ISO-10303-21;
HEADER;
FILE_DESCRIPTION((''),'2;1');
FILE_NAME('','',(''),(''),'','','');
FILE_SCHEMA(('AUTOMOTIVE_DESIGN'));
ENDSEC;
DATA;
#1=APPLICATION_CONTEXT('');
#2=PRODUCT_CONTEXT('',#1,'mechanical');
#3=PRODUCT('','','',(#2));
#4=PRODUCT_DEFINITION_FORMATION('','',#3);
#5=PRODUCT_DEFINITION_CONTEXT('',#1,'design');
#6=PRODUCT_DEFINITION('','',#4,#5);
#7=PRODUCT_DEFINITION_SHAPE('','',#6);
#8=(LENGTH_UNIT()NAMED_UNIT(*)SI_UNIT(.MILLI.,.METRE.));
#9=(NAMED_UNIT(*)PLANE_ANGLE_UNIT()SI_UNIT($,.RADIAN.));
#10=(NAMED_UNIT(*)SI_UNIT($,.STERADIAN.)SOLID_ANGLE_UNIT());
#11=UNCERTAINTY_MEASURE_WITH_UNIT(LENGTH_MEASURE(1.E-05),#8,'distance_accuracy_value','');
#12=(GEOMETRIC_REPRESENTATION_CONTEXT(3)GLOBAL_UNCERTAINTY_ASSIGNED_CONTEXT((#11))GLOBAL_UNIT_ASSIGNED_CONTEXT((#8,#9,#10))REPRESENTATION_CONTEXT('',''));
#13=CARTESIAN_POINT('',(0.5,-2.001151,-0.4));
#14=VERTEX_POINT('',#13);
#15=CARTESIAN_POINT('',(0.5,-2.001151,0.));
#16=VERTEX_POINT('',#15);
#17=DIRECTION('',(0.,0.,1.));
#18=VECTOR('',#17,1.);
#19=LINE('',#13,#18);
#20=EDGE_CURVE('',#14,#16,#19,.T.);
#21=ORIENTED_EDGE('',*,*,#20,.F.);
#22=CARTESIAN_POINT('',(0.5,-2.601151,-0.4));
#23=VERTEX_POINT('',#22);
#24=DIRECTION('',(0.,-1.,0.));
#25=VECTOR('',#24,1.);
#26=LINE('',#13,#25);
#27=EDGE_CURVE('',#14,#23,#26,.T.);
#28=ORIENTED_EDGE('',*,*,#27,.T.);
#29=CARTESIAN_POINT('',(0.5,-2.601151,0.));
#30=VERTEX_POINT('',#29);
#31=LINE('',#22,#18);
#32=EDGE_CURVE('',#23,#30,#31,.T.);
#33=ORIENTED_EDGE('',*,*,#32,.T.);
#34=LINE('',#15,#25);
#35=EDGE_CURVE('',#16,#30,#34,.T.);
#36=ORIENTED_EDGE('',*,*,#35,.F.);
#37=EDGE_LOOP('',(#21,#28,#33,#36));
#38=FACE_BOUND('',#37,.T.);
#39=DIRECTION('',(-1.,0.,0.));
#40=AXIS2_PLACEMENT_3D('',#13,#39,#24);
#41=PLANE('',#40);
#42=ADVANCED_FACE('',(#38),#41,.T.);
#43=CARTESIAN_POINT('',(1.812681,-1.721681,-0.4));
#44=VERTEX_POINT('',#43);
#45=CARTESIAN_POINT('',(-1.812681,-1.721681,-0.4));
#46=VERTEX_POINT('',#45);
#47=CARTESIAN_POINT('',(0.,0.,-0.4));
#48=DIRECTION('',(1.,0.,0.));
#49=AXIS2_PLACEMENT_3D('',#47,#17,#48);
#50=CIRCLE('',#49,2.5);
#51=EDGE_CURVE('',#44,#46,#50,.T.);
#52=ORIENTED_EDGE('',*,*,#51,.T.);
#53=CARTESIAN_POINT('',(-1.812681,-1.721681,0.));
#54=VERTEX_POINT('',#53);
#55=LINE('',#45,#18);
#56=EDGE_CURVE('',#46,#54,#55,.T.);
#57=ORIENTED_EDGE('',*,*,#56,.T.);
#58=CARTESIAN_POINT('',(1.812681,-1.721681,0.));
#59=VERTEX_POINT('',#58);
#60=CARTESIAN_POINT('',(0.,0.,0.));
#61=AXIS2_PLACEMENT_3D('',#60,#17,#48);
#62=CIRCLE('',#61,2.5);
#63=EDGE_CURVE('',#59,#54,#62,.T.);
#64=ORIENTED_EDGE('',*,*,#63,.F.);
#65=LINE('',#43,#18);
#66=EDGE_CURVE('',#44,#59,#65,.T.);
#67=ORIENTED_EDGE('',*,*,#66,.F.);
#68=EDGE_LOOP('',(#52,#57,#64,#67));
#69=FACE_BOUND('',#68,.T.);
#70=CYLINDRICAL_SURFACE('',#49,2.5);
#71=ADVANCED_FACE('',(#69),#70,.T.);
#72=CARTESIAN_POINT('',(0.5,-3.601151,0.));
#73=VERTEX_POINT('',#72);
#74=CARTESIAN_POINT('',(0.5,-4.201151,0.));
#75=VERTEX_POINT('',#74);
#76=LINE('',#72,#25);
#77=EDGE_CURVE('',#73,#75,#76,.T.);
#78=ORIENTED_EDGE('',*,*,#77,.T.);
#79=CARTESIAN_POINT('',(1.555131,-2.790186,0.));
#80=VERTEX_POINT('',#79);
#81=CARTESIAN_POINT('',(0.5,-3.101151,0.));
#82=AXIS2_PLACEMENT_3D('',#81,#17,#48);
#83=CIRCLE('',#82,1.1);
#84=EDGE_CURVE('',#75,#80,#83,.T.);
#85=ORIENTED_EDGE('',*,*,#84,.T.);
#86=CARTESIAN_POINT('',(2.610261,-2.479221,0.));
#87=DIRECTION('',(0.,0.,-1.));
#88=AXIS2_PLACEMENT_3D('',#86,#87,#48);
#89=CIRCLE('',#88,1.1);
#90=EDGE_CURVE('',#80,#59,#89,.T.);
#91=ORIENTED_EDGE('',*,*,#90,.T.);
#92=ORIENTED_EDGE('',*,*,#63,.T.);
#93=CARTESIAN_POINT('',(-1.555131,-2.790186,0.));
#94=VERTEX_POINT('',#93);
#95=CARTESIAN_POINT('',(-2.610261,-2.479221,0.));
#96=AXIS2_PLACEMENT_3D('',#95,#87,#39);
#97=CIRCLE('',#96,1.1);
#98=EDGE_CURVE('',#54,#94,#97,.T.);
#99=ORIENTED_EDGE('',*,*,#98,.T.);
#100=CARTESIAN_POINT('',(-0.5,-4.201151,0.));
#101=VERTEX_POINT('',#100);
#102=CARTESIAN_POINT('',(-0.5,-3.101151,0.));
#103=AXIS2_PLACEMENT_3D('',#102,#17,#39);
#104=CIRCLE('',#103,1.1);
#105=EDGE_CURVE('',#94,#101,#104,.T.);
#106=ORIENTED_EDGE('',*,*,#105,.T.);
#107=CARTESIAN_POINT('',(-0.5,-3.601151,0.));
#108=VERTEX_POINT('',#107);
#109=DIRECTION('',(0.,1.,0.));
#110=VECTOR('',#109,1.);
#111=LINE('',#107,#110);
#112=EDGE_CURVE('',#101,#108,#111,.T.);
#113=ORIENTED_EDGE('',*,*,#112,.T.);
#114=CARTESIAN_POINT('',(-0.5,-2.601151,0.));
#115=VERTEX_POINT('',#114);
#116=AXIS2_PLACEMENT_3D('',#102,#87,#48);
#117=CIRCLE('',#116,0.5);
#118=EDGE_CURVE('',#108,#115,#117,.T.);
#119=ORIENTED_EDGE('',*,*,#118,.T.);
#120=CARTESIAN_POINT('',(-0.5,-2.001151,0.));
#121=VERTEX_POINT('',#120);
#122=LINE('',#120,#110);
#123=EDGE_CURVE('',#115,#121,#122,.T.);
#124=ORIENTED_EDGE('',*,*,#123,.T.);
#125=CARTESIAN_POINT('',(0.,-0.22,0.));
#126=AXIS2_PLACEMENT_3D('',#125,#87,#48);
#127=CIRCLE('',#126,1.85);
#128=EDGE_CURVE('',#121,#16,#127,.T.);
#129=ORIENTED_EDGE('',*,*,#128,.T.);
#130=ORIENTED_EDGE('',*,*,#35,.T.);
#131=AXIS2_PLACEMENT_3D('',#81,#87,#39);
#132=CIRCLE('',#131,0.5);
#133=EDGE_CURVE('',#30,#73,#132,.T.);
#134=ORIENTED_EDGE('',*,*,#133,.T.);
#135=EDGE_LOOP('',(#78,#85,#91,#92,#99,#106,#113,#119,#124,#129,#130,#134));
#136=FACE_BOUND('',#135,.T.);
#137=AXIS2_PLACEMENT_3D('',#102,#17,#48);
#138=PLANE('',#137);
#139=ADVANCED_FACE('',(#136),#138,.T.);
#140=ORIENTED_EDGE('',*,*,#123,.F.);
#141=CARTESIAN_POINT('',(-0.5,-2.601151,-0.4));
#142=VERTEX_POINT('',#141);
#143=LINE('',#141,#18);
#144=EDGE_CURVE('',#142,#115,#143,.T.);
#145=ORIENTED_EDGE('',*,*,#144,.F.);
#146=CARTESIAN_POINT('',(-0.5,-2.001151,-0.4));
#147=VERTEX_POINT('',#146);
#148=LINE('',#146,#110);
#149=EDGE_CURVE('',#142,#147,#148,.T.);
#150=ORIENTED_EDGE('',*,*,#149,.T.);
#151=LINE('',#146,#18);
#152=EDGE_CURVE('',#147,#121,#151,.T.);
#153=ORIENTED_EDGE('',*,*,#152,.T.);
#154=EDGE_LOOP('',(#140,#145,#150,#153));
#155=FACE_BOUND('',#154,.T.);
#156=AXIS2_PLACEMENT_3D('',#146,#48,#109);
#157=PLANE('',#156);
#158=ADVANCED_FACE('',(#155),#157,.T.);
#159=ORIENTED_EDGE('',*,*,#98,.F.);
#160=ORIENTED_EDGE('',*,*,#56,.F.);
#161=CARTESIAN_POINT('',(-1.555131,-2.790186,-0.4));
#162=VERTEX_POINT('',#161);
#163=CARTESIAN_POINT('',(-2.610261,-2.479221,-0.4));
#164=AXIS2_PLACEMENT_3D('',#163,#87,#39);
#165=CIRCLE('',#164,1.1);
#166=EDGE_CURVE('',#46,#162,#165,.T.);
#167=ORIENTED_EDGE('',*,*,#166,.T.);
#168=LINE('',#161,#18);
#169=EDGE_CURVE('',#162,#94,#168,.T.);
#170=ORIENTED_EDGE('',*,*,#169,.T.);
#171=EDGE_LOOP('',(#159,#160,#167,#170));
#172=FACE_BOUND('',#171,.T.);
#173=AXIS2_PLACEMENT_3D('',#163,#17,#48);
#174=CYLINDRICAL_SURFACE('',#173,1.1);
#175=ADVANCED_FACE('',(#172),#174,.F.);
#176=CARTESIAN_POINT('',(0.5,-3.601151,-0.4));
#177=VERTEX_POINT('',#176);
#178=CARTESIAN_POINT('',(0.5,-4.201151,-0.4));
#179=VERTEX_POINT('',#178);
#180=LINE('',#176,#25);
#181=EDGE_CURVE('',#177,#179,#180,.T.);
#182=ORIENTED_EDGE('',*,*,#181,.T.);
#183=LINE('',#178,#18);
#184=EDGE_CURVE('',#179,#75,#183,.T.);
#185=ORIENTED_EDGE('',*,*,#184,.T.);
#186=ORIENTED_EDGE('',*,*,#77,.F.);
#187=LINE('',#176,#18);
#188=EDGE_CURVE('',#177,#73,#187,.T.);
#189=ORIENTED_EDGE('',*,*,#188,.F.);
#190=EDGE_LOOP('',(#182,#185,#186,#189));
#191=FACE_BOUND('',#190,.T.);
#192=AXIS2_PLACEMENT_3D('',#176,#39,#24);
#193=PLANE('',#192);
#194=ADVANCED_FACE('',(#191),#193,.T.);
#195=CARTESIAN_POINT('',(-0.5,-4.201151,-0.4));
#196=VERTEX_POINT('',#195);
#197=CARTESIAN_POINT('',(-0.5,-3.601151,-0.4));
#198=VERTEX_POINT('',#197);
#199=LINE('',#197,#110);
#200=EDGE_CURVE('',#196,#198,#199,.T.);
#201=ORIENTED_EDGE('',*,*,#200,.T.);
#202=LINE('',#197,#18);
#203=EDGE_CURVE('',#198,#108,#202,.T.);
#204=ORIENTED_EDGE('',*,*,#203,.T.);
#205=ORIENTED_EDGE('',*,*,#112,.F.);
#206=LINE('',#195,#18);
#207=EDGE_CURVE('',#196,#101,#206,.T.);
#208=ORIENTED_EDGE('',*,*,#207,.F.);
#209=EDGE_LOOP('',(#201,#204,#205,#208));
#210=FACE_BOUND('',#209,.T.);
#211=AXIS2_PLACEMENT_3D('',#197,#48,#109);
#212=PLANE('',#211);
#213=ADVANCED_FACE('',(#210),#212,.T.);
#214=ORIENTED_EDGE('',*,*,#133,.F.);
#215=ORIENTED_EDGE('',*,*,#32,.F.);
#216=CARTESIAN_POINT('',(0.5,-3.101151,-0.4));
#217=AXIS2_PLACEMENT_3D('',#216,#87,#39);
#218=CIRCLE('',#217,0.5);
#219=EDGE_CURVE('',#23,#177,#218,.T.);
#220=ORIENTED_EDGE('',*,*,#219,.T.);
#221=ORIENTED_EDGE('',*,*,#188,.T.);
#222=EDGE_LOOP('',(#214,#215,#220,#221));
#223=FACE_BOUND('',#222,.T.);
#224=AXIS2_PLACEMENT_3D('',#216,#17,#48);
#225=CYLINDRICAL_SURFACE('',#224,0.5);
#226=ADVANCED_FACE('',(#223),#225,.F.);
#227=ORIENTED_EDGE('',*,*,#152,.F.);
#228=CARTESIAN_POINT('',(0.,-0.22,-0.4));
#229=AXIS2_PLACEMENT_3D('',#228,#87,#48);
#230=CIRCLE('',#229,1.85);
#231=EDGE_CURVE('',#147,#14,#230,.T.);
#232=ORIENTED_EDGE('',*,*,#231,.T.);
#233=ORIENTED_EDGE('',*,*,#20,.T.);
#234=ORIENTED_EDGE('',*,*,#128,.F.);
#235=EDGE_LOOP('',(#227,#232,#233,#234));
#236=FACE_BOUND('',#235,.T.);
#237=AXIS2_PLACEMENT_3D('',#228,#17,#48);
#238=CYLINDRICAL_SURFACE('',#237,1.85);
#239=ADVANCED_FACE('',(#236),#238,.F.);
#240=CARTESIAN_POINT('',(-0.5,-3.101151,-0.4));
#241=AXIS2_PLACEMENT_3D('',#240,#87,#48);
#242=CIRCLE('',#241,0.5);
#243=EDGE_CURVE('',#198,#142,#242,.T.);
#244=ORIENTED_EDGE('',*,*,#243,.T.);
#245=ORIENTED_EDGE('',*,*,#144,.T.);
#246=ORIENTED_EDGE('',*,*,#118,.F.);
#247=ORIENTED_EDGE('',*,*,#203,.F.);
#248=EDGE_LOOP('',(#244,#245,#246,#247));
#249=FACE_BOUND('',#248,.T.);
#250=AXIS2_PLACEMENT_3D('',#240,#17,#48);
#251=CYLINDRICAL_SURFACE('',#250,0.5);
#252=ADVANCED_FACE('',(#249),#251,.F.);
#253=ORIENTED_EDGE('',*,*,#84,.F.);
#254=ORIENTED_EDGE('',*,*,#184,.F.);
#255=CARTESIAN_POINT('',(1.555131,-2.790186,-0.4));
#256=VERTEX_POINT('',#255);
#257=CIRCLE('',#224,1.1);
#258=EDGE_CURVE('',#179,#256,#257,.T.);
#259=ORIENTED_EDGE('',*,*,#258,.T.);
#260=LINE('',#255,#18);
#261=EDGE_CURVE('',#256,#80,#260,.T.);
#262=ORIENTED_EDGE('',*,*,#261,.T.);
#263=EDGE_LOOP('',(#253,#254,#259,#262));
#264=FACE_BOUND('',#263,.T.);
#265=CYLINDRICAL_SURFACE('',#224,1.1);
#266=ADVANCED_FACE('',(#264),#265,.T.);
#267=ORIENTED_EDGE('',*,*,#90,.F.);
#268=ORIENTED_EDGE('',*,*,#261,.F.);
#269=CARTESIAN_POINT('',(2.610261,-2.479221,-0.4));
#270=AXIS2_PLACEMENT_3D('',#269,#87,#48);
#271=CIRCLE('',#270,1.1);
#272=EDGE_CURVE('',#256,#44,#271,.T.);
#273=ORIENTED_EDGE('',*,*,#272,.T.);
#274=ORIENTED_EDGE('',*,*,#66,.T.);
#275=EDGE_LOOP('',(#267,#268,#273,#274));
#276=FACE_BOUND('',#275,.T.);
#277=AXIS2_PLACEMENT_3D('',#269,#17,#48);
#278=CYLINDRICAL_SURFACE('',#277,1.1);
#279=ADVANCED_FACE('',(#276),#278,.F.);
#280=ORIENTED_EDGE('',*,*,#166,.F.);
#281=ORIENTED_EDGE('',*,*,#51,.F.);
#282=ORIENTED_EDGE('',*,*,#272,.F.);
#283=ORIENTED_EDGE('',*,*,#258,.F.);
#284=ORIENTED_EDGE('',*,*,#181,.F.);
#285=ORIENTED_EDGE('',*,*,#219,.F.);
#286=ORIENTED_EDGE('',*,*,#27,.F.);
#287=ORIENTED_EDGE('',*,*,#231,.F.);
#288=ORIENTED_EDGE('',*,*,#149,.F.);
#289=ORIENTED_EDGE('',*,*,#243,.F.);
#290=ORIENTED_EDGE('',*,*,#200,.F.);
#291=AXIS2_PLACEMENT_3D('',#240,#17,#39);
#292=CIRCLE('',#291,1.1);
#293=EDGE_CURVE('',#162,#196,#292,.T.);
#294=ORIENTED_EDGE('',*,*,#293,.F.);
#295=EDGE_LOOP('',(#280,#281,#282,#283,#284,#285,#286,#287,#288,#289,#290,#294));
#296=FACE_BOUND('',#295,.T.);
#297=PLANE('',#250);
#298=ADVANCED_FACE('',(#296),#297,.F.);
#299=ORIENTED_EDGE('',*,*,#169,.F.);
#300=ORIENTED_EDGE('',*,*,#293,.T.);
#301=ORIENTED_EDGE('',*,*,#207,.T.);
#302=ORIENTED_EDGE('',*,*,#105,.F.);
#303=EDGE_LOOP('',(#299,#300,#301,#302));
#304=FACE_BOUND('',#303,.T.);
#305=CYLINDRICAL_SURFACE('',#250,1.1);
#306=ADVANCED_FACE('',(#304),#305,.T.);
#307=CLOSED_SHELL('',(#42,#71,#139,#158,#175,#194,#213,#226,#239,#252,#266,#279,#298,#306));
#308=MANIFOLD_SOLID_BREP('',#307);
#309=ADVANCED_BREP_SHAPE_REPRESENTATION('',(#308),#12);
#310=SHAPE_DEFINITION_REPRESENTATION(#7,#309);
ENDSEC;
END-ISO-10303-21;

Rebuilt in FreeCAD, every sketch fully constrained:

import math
import FreeCAD as App
import Part
import Sketcher
from FreeCAD import Vector

doc = App.newDocument("Part")
body = doc.addObject("PartDesign::Body", "Body")

sketch1 = doc.addObject("Sketcher::SketchObject", "Sketch")
body.addObject(sketch1)
sketch1.AttachmentSupport = (doc.XY_Plane, [""])
sketch1.MapMode = "FlatFace"
sketch1.addGeometry([
    Part.LineSegment(Vector(-0.5, -2.601151, 0), Vector(-0.5, -2.001151, 0)),
    Part.ArcOfCircle(Part.Circle(Vector(0, -0.22, 0), Vector(0, 0, 1), 1.85), math.radians(-74.31965), math.radians(254.31965)),
    Part.LineSegment(Vector(0.5, -2.001151, 0), Vector(0.5, -2.601151, 0)),
    Part.ArcOfCircle(Part.Circle(Vector(0.5, -3.101151, 0), Vector(0, 0, 1), 0.5), math.radians(-90), math.radians(90)),
    Part.LineSegment(Vector(0.5, -3.601151, 0), Vector(0.5, -4.201151, 0)),
    Part.ArcOfCircle(Part.Circle(Vector(0.5, -3.101151, 0), Vector(0, 0, 1), 1.1), math.radians(-90), math.radians(16.421156)),
    Part.ArcOfCircle(Part.Circle(Vector(2.610261, -2.479221, 0), Vector(0, 0, 1), 1.1), math.radians(136.474885), math.radians(196.421155)),
    Part.ArcOfCircle(Part.Circle(Vector(0, 0, 0), Vector(0, 0, 1), 2.5), math.radians(-43.525115), math.radians(223.525115)),
    Part.ArcOfCircle(Part.Circle(Vector(-2.610261, -2.479221, 0), Vector(0, 0, 1), 1.1), math.radians(-16.421155), math.radians(43.525115)),
    Part.ArcOfCircle(Part.Circle(Vector(-0.5, -3.101151, 0), Vector(0, 0, 1), 1.1), math.radians(163.578844), math.radians(270)),
    Part.LineSegment(Vector(-0.5, -4.201151, 0), Vector(-0.5, -3.601151, 0)),
    Part.ArcOfCircle(Part.Circle(Vector(-0.5, -3.101151, 0), Vector(0, 0, 1), 0.5), math.radians(90), math.radians(270)),
], False)
sketch1.addConstraint([
    Sketcher.Constraint("Coincident", 0, 2, 1, 2),
    Sketcher.Constraint("Coincident", 1, 1, 2, 1),
    Sketcher.Constraint("Coincident", 2, 2, 3, 2),
    Sketcher.Constraint("Coincident", 3, 1, 4, 1),
    Sketcher.Constraint("Coincident", 4, 2, 5, 1),
    Sketcher.Constraint("Tangent", 5, 2, 6, 2),
    Sketcher.Constraint("Tangent", 6, 1, 7, 1),
    Sketcher.Constraint("Tangent", 7, 2, 8, 2),
    Sketcher.Constraint("Tangent", 8, 1, 9, 1),
    Sketcher.Constraint("Coincident", 9, 2, 10, 1),
    Sketcher.Constraint("Coincident", 10, 2, 11, 2),
    Sketcher.Constraint("Coincident", 11, 1, 0, 1),
    Sketcher.Constraint("Vertical", 0),
    Sketcher.Constraint("Vertical", 2),
    Sketcher.Constraint("Vertical", 4),
    Sketcher.Constraint("Vertical", 10),
    Sketcher.Constraint("Coincident", 7, 3, -1, 1),
    Sketcher.Constraint("Coincident", 5, 3, 3, 3),
    Sketcher.Constraint("Coincident", 11, 3, 9, 3),
    Sketcher.Constraint("Equal", 5, 6),
    Sketcher.Constraint("Equal", 6, 8),
    Sketcher.Constraint("Equal", 8, 9),
    Sketcher.Constraint("Equal", 3, 11),
    Sketcher.Constraint("Symmetric", 3, 3, 9, 3, -2),
    Sketcher.Constraint("Symmetric", 0, 2, 1, 1, -2),
    Sketcher.Constraint("Vertical", 11, 3, 0, 2),
    Sketcher.Constraint("Vertical", 2, 2, 3, 1),
    Sketcher.Constraint("Vertical", 0, 2, 9, 2),
    Sketcher.Constraint("Equal", 2, 4),
    Sketcher.Constraint("Radius", 3, 0.5),
    Sketcher.Constraint("Radius", 5, 1.1),
    Sketcher.Constraint("Radius", 7, 2.5),
    Sketcher.Constraint("Radius", 1, 1.85),
    Sketcher.Constraint("DistanceX", 9, 3, 3, 3, 1.0),
    Sketcher.Constraint("DistanceY", 1, 3, -1, 1, 0.22),
])
pad1 = doc.addObject("PartDesign::Pad", "Pad")
body.addObject(pad1)
pad1.Profile = sketch1
pad1.Length = 0.4
pad1.Reversed = True

doc.recompute()
